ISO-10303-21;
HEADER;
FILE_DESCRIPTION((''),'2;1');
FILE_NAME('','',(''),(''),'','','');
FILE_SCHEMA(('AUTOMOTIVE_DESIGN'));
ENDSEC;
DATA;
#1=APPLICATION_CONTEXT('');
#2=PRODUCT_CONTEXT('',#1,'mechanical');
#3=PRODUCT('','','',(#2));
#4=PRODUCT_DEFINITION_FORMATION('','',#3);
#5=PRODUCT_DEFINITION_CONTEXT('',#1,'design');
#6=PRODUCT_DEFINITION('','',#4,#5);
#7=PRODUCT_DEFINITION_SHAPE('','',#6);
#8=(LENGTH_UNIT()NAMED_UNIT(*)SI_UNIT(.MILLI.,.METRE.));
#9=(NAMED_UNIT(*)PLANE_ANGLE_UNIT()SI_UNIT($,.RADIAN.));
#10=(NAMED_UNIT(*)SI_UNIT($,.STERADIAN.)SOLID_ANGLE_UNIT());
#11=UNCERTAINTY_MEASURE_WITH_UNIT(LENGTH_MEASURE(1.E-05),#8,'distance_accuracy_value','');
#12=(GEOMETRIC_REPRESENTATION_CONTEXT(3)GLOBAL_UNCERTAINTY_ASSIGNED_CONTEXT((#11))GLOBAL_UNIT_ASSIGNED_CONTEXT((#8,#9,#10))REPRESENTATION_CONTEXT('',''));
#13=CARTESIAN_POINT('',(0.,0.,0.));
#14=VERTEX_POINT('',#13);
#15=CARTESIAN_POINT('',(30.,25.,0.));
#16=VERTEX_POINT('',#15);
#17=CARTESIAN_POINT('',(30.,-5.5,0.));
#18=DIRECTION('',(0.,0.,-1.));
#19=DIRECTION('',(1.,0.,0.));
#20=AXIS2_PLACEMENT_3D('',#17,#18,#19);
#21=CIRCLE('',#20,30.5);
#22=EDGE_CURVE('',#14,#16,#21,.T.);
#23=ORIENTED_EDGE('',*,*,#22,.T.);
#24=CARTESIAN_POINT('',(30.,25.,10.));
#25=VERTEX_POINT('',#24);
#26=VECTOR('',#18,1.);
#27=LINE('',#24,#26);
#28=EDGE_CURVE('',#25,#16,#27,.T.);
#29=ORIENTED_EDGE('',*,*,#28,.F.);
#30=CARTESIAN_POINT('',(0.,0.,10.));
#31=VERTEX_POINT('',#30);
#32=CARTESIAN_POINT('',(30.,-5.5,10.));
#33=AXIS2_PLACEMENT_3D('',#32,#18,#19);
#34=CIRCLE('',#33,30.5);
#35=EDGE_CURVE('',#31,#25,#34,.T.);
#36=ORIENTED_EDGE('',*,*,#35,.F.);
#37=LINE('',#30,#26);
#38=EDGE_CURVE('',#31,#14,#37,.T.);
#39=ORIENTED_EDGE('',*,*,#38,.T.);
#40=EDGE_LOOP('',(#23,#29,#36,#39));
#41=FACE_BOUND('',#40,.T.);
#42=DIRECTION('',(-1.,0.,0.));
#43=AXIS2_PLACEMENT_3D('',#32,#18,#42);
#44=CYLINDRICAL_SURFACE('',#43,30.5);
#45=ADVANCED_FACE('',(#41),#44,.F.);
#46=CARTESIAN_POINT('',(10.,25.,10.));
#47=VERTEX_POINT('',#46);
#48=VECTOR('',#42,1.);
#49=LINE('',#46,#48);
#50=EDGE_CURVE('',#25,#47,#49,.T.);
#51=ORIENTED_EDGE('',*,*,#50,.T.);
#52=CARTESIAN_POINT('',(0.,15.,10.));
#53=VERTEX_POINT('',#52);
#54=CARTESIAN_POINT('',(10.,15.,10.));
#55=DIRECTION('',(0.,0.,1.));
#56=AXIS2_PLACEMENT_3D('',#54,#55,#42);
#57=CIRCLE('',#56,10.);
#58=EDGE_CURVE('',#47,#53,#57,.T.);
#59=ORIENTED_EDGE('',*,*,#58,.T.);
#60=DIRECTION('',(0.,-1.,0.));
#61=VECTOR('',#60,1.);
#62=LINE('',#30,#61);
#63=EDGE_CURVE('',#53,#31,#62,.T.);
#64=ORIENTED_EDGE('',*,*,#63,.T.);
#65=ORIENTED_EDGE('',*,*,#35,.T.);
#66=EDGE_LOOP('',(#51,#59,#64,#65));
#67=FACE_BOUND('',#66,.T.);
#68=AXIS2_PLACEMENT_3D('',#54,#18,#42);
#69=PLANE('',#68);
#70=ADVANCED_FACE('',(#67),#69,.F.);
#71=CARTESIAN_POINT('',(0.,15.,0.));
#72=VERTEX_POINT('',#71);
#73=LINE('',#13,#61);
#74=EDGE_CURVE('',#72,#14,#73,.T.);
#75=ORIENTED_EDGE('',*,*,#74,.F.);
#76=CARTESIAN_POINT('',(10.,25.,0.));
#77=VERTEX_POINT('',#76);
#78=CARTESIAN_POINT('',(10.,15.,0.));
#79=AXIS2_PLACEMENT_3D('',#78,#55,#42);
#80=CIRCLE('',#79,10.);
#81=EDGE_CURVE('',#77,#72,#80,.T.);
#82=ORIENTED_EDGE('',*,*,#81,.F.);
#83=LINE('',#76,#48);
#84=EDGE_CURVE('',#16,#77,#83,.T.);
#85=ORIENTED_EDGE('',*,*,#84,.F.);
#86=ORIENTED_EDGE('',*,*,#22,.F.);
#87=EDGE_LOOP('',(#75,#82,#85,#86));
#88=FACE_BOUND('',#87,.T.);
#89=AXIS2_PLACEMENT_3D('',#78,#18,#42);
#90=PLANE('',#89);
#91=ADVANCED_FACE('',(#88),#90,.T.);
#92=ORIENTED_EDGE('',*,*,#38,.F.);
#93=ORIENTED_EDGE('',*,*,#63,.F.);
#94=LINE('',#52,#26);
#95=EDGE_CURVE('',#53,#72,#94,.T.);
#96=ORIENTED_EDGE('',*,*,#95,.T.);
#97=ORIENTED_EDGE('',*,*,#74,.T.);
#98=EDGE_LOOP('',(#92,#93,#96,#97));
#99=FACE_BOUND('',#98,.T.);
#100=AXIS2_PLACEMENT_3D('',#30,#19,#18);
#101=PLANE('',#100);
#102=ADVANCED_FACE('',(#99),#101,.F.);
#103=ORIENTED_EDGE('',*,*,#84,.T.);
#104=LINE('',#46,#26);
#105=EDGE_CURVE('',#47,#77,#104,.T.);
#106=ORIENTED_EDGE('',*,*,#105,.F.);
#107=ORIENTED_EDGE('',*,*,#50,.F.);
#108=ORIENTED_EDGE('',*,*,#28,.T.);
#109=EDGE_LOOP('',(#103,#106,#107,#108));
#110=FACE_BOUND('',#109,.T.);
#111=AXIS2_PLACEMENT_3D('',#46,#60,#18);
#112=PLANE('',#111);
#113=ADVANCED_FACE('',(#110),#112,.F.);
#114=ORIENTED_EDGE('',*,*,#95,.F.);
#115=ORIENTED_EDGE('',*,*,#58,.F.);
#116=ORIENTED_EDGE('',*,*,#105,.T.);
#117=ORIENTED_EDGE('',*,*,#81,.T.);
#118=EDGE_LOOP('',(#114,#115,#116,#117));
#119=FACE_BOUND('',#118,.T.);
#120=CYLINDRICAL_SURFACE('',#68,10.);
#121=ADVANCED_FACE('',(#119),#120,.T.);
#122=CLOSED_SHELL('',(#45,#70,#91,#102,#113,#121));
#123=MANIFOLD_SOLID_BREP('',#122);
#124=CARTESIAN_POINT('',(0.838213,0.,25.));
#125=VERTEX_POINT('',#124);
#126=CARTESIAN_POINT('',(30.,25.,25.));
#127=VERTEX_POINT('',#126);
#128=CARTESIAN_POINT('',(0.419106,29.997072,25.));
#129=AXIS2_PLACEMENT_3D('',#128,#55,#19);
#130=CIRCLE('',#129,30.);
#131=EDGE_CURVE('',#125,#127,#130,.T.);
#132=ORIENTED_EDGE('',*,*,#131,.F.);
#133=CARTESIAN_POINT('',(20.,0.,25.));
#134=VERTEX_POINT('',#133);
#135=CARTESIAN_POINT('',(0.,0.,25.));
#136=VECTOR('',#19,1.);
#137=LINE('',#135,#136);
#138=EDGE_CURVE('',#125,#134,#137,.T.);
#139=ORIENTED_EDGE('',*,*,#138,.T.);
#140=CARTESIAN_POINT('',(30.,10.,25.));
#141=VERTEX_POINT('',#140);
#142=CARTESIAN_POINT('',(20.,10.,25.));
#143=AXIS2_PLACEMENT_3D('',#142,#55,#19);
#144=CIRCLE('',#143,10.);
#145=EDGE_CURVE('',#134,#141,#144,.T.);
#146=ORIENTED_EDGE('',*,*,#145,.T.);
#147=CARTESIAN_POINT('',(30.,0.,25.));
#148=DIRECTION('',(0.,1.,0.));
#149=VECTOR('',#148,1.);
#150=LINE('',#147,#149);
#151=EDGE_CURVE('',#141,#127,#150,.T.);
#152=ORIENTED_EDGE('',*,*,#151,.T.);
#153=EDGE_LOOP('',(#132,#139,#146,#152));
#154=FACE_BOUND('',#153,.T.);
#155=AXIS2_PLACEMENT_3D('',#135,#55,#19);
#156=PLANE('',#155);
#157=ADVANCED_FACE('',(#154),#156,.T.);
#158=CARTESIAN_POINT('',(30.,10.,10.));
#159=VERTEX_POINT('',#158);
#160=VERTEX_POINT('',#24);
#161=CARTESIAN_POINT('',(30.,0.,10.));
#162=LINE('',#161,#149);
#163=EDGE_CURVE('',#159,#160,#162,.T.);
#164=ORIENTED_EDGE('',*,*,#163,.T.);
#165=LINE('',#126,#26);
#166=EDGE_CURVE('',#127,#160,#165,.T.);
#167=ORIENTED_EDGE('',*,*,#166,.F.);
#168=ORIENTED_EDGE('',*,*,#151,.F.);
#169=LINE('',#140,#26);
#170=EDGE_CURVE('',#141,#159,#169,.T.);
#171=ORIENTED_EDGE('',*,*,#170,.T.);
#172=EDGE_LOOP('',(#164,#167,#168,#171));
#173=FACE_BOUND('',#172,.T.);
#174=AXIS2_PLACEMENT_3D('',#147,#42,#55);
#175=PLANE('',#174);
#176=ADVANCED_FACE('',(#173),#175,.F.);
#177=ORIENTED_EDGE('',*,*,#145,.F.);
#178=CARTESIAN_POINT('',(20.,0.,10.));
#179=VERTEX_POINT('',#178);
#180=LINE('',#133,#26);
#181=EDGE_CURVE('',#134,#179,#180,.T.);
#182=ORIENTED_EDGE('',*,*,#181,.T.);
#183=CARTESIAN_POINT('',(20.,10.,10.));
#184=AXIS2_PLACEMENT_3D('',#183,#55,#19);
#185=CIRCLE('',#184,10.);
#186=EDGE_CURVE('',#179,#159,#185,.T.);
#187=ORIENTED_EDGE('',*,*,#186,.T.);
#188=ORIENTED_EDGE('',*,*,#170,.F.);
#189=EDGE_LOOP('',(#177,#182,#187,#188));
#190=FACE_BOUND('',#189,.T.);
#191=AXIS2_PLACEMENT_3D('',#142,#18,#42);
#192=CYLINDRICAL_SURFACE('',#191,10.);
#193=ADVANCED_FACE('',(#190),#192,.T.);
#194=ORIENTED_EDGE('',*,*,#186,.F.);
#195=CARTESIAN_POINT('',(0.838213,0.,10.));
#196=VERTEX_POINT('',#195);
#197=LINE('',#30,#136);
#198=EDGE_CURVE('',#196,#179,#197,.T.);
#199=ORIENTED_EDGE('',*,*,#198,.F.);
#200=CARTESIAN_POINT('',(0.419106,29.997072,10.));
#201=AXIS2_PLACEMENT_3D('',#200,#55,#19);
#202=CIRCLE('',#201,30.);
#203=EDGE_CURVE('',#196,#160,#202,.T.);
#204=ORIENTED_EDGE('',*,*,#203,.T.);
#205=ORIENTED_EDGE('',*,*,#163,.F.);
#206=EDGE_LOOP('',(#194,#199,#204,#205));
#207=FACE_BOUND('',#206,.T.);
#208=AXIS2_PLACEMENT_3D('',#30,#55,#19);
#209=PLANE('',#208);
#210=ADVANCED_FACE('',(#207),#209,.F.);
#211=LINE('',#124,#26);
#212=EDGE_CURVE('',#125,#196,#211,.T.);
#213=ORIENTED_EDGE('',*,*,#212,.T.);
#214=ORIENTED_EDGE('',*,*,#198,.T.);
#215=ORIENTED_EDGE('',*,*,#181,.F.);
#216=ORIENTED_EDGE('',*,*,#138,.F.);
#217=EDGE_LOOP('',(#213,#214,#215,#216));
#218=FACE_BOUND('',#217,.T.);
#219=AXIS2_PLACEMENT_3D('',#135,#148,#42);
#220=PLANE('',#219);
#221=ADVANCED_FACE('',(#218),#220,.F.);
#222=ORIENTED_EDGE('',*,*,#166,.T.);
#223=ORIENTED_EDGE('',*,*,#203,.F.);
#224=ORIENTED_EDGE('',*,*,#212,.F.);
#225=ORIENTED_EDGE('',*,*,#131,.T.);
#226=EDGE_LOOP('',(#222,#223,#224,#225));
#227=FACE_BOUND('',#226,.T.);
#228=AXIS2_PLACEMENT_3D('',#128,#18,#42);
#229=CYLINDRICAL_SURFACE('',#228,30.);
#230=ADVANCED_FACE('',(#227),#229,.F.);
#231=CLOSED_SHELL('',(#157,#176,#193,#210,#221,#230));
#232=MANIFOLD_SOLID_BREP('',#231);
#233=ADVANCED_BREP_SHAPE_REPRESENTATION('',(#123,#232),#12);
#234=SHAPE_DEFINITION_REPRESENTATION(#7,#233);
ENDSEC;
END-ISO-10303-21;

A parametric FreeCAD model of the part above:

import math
import FreeCAD as App
import Part
import Sketcher
Q = App.Units.Quantity

doc = App.newDocument("Part")
body = doc.addObject("PartDesign::Body", "Body")

# Sketch on XY plane
sketch1 = body.newObject("Sketcher::SketchObject", "Sketch")
sketch1.AttachmentSupport = (doc.getObject("XY_Plane"), [""])
sketch1.MapMode = "FlatFace"
sketch1.addGeometry([
    Part.LineSegment(App.Vector(30, 25, 0), App.Vector(10, 25, 0)),
    Part.ArcOfCircle(Part.Circle(App.Vector(10, 15, 0), App.Vector(0, 0, 1), 10), math.radians(90), math.radians(180)),
    Part.LineSegment(App.Vector(0, 15, 0), App.Vector(0, 0, 0)),
    Part.ArcOfCircle(Part.Circle(App.Vector(30, -5, 0), App.Vector(0, 0, 1), 30), math.radians(90), math.radians(170)),
], False)
sketch1.addConstraint([
    Sketcher.Constraint("Tangent", 0, 2, 1, 1),
    Sketcher.Constraint("Tangent", 1, 2, 2, 1),
    Sketcher.Constraint("Coincident", 2, 2, 3, 2),
    Sketcher.Constraint("Tangent", 3, 1, 0, 1),
    Sketcher.Constraint("Horizontal", 0),
    Sketcher.Constraint("Vertical", 2),
    Sketcher.Constraint("Coincident", 2, 2, -1, 1),
    Sketcher.Constraint("Radius", 1, Q("10 mm")),
    Sketcher.Constraint("Radius", 3, Q("30.5 mm")),
    Sketcher.Constraint("DistanceX", 0, 2, 0, 1, Q("20 mm")),
])
pad1 = body.newObject("PartDesign::Pad", "Pad")
pad1.Profile = sketch1
pad1.Length = 10
body2 = doc.addObject("PartDesign::Body", "Body001")

# Sketch on XY plane
sketch2 = body2.newObject("Sketcher::SketchObject", "Sketch001")
sketch2.AttachmentSupport = (doc.getObject("XY_Plane001"), [""])
sketch2.MapMode = "FlatFace"
sketch2.AttachmentOffset = App.Placement(App.Vector(0, 0, 10), App.Rotation())
sketch2.addGeometry([
    Part.ArcOfCircle(Part.Circle(App.Vector(0, 30, 0), App.Vector(0, 0, 1), 30), math.radians(-89), math.radians(-10)),
    Part.LineSegment(App.Vector(1, 0, 0), App.Vector(20, 0, 0)),
    Part.ArcOfCircle(Part.Circle(App.Vector(20, 10, 0), App.Vector(0, 0, 1), 10), math.radians(-90), math.radians(0)),
    Part.LineSegment(App.Vector(30, 10, 0), App.Vector(30, 25, 0)),
], False)
sketch2.addConstraint([
    Sketcher.Constraint("Coincident", 0, 1, 1, 1),
    Sketcher.Constraint("Tangent", 1, 2, 2, 1),
    Sketcher.Constraint("Tangent", 2, 2, 3, 1),
    Sketcher.Constraint("Coincident", 3, 2, 0, 2),
    Sketcher.Constraint("Horizontal", 1),
    Sketcher.Constraint("Vertical", 3),
    Sketcher.Constraint("PointOnObject", 0, 1, -1),
    Sketcher.Constraint("Radius", 0, Q("30 mm")),
    Sketcher.Constraint("Radius", 2, Q("10 mm")),
    Sketcher.Constraint("DistanceY", 3, 1, 3, 2, Q("15 mm")),
    Sketcher.Constraint("DistanceX", -1, 1, 2, 3, Q("20 mm")),
    Sketcher.Constraint("DistanceX", 1, 1, 1, 2, Q("19.161787 mm")),
])
pad2 = body2.newObject("PartDesign::Pad", "Pad001")
pad2.Profile = sketch2
pad2.Length = 15

doc.recompute()
